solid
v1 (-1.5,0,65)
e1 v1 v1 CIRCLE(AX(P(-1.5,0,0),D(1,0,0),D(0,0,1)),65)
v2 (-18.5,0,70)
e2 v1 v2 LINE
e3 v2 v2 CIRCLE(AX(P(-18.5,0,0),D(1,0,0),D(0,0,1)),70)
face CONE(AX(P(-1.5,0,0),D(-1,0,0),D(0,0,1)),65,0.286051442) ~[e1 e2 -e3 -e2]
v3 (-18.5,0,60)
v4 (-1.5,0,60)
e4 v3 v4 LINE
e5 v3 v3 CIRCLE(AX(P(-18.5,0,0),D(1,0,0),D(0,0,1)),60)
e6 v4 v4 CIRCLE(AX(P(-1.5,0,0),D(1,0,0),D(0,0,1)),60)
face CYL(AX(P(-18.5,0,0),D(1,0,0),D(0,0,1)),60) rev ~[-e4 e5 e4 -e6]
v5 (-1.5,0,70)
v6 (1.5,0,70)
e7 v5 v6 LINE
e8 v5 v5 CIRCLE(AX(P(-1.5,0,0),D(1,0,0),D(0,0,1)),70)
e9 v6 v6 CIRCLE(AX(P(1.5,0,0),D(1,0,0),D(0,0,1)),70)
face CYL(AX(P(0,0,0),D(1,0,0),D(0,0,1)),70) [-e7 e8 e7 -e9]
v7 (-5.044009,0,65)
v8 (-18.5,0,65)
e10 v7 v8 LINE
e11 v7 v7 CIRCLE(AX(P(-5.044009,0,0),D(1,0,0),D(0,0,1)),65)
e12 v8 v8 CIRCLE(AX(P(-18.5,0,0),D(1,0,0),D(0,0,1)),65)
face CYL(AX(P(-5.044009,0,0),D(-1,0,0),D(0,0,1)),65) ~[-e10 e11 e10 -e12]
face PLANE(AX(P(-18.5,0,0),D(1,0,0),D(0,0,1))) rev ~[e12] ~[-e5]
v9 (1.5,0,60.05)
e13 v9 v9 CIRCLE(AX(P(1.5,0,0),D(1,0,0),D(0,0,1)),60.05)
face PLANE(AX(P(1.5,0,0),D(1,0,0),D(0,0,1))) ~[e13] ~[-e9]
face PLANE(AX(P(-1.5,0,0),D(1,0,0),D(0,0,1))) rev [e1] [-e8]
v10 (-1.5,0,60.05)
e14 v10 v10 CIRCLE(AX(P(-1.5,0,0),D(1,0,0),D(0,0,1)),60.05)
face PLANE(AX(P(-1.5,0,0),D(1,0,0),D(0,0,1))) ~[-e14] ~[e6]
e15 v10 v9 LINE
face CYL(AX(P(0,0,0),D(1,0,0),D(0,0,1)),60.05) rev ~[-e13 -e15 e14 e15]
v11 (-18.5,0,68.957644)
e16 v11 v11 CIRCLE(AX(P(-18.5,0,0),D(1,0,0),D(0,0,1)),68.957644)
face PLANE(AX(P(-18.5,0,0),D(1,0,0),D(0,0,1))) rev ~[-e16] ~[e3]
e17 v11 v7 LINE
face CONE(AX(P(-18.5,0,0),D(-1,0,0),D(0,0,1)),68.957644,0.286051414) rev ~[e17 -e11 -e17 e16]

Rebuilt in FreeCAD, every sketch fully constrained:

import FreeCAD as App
import Part
import Sketcher

V = App.Vector
Q = App.Units.Quantity

doc = App.newDocument("Part")
params = doc.addObject("Spreadsheet::Sheet", "Params")
for row, (alias, value) in enumerate([
    ("sketch1_width", "3 mm"),
    ("sketch1_height", "9.95 mm"),
    ("revolution_angle", "360 deg"),
    ("sketch2_width", "17 mm"),
    ("sketch2_height", "5 mm"),
    ("revolution2_angle", "360 deg"),
], start=1):
    params.set(f"A{row}", alias)
    params.set(f"B{row}", "=" + value)
    params.setAlias(f"B{row}", alias)

body = doc.addObject("PartDesign::Body", "Body")

# Sketch on XZ plane
sketch1 = body.newObject("Sketcher::SketchObject", "Sketch")
sketch1.AttachmentSupport = (doc.getObject("XZ_Plane"), [""])
sketch1.MapMode = "FlatFace"
sketch1.addGeometry([
    Part.LineSegment(V(-1.5, 70, 0), V(-1.5, 60.05, 0)),
    Part.LineSegment(V(-1.5, 60.05, 0), V(1.5, 60.05, 0)),
    Part.LineSegment(V(1.5, 60.05, 0), V(1.5, 70, 0)),
    Part.LineSegment(V(1.5, 70, 0), V(-1.5, 70, 0)),
], False)
sketch1.addConstraint([
    Sketcher.Constraint("Coincident", 0, 2, 1, 1),
    Sketcher.Constraint("Coincident", 1, 2, 2, 1),
    Sketcher.Constraint("Coincident", 2, 2, 3, 1),
    Sketcher.Constraint("Coincident", 3, 2, 0, 1),
    Sketcher.Constraint("Vertical", 0),
    Sketcher.Constraint("Horizontal", 1),
    Sketcher.Constraint("Vertical", 2),
    Sketcher.Constraint("Horizontal", 3),
    Sketcher.Constraint("DistanceX", 1, 1, 1, 2, Q("3 mm")),
    Sketcher.Constraint("DistanceY", -1, 1, 2, 2, Q("70 mm")),
    Sketcher.Constraint("DistanceY", 0, 2, 0, 1, Q("9.95 mm")),
    Sketcher.Constraint("DistanceX", 0, 2, -1, 1, Q("1.5 mm")),
])
sketch1.setExpression("Constraints[8]", "Params.sketch1_width")
sketch1.setExpression("Constraints[10]", "Params.sketch1_height")
revolution = body.newObject("PartDesign::Revolution", "Revolution")
revolution.Profile = sketch1
revolution.ReferenceAxis = (sketch1, ["H_Axis"])
revolution.setExpression("Angle", "Params.revolution_angle")

# Sketch on XZ plane
sketch2 = body.newObject("Sketcher::SketchObject", "Sketch001")
sketch2.AttachmentSupport = (doc.getObject("XZ_Plane"), [""])
sketch2.MapMode = "FlatFace"
sketch2.addGeometry([
    Part.LineSegment(V(-5.044009, 65, 0), V(-18.5, 65, 0)),  # 0
    Part.LineSegment(V(-18.5, 65, 0), V(-18.5, 60, 0)),  # 1
    Part.LineSegment(V(-18.5, 60, 0), V(-1.5, 60, 0)),  # 2
    Part.LineSegment(V(-1.5, 60, 0), V(-1.5, 65, 0)),  # 3
    Part.LineSegment(V(-1.5, 65, 0), V(-18.5, 70, 0)),  # 4
    Part.LineSegment(V(-18.5, 70, 0), V(-18.5, 68.957644, 0)),  # 5
    Part.LineSegment(V(-18.5, 68.957644, 0), V(-5.044009, 65, 0)),  # 6
], False)
sketch2.addConstraint([
    Sketcher.Constraint("Coincident", 0, 2, 1, 1),
    Sketcher.Constraint("Coincident", 1, 2, 2, 1),
    Sketcher.Constraint("Coincident", 2, 2, 3, 1),
    Sketcher.Constraint("Coincident", 3, 2, 4, 1),
    Sketcher.Constraint("Coincident", 4, 2, 5, 1),
    Sketcher.Constraint("Coincident", 5, 2, 6, 1),
    Sketcher.Constraint("Coincident", 6, 2, 0, 1),
    Sketcher.Constraint("Horizontal", 0),
    Sketcher.Constraint("Vertical", 1),
    Sketcher.Constraint("Horizontal", 2),
    Sketcher.Constraint("Vertical", 3),
    Sketcher.Constraint("Vertical", 5),
    Sketcher.Constraint("Parallel", 4, 6),
    Sketcher.Constraint("Horizontal", 0, 2, 3, 2),
    Sketcher.Constraint("Vertical", 1, 2, 4, 2),
    Sketcher.Constraint("DistanceX", 2, 1, 2, 2, Q("17 mm")),
    Sketcher.Constraint("DistanceY", 1, 2, 1, 1, Q("5 mm")),
    Sketcher.Constraint("DistanceY", -1, 1, 0, 2, Q("65 mm")),
    Sketcher.Constraint("DistanceY", -1, 1, 4, 2, Q("70 mm")),
    Sketcher.Constraint("DistanceX", 0, 2, -1, 1, Q("18.5 mm")),
    Sketcher.Constraint("DistanceX", 0, 2, 0, 1, Q("13.455991 mm")),
])
sketch2.setExpression("Constraints[15]", "Params.sketch2_width")
sketch2.setExpression("Constraints[16]", "Params.sketch2_height")
revolution2 = body.newObject("PartDesign::Revolution", "Revolution001")
revolution2.Profile = sketch2
revolution2.ReferenceAxis = (sketch2, ["H_Axis"])
revolution2.setExpression("Angle", "Params.revolution2_angle")

doc.recompute()
